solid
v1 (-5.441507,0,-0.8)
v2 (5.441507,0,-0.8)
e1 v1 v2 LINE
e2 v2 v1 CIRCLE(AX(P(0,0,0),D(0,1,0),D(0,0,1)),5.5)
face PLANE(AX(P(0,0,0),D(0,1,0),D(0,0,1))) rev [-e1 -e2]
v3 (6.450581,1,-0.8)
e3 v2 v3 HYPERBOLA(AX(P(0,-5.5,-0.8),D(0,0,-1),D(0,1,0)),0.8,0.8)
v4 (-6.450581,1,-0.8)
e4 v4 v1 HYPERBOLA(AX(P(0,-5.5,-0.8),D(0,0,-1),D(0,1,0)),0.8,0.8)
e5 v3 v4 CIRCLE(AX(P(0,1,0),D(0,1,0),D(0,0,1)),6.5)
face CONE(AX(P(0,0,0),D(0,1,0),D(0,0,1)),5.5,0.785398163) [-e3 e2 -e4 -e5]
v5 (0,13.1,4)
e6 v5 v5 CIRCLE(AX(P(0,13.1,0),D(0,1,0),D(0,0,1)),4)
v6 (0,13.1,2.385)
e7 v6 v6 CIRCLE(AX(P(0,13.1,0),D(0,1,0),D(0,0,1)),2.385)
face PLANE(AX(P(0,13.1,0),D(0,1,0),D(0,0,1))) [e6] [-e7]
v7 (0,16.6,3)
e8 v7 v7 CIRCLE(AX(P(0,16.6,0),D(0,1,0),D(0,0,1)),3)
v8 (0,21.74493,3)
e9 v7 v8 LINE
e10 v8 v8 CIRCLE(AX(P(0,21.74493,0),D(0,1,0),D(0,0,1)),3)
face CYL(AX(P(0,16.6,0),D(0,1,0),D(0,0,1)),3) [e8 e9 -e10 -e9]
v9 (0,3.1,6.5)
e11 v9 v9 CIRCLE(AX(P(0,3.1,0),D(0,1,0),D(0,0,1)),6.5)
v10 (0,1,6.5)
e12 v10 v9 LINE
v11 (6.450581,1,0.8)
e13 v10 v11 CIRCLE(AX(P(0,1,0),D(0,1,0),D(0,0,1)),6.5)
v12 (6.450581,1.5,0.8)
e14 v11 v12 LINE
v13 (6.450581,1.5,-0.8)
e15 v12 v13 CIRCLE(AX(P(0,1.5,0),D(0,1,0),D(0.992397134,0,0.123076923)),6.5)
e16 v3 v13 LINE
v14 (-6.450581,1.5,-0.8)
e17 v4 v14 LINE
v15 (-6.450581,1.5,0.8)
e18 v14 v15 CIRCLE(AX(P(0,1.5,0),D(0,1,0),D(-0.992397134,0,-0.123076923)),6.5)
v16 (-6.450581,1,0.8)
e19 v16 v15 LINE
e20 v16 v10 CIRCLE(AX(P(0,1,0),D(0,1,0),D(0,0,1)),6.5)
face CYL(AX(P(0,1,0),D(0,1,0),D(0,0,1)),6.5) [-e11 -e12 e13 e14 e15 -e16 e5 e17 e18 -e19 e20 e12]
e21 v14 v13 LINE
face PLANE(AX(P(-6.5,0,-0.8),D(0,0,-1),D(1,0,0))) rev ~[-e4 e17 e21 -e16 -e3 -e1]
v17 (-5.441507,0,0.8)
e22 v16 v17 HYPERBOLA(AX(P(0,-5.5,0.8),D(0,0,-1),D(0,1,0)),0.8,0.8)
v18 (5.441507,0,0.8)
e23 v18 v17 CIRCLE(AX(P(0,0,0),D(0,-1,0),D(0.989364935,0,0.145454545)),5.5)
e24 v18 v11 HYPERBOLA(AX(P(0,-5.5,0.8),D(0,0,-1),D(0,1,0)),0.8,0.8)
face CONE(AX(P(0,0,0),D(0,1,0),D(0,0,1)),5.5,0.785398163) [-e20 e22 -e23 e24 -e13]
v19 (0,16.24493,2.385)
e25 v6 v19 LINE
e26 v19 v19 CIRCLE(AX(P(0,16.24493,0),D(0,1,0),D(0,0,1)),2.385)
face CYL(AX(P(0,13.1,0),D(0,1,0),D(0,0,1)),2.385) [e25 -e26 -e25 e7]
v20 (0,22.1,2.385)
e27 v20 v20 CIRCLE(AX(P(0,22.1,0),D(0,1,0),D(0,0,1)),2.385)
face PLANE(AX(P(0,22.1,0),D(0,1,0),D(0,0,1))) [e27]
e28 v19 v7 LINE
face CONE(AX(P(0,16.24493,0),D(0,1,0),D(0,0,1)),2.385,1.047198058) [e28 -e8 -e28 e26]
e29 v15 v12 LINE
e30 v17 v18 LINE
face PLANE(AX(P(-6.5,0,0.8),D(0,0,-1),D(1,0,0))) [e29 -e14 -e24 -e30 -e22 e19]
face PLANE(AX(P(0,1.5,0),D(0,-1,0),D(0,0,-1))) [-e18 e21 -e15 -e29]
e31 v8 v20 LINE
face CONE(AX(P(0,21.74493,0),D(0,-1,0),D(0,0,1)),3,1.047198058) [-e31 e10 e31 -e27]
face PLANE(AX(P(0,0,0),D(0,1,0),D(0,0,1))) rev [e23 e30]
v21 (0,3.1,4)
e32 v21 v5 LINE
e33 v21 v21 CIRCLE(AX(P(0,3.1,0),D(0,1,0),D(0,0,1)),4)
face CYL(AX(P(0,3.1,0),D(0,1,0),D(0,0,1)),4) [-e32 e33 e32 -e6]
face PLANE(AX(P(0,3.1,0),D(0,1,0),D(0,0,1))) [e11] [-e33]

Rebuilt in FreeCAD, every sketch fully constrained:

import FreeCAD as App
import Part
import Sketcher
from FreeCAD import Vector
Q = App.Units.Quantity


def add_polygon(sketch, points):
    """Adds a closed chain of lines whose ends are joined by coincident constraints."""
    first, n = sketch.GeometryCount, len(points)
    for a, b in zip(points, points[1:] + points[:1]):
        sketch.addGeometry(Part.LineSegment(App.Vector(*a, 0), App.Vector(*b, 0)), False)
    for i in range(n):
        sketch.addConstraint(Sketcher.Constraint("Coincident", first + i, 2, first + (i + 1) % n, 1))

doc = App.newDocument("Part")
body = doc.addObject("PartDesign::Body", "Body")

# Sketch on YZ plane
sketch1 = body.newObject("Sketcher::SketchObject", "Sketch")
sketch1.AttachmentSupport = (doc.getObject("YZ_Plane"), [""])
sketch1.MapMode = "FlatFace"
add_polygon(sketch1, [(0, 5.5), (0, 0), (22.1, 0), (22.1, 2.385), (21.74493, 3), (16.6, 3), (16.24493, 2.385), (13.1, 2.385), (13.1, 4), (3.1, 4), (3.1, 6.5), (1, 6.5)])  # lines 0-11
sketch1.addConstraint(Sketcher.Constraint("Vertical", 0))
sketch1.addConstraint(Sketcher.Constraint("Horizontal", 1))
sketch1.addConstraint(Sketcher.Constraint("Vertical", 2))
sketch1.addConstraint(Sketcher.Constraint("Horizontal", 4))
sketch1.addConstraint(Sketcher.Constraint("Horizontal", 6))
sketch1.addConstraint(Sketcher.Constraint("Vertical", 7))
sketch1.addConstraint(Sketcher.Constraint("Horizontal", 8))
sketch1.addConstraint(Sketcher.Constraint("Vertical", 9))
sketch1.addConstraint(Sketcher.Constraint("Horizontal", 10))
sketch1.addConstraint(Sketcher.Constraint("Coincident", 0, 2, -1, 1))
sketch1.addConstraint(Sketcher.Constraint("Horizontal", 2, 2, 5, 2))
sketch1.addConstraint(Sketcher.Constraint("Equal", 3, 5))
sketch1.addConstraint(Sketcher.Constraint("DistanceX", 8, 2, 8, 1, 10.0))
sketch1.addConstraint(Sketcher.Constraint("Angle", 11, Q("-135 deg")))
sketch1.addConstraint(Sketcher.Constraint("DistanceX", 1, 1, 1, 2, 22.1))
sketch1.addConstraint(Sketcher.Constraint("DistanceX", 10, 2, 10, 1, 2.1))
sketch1.addConstraint(Sketcher.Constraint("DistanceY", 0, 2, 0, 1, 5.5))
sketch1.addConstraint(Sketcher.Constraint("DistanceY", 9, 1, 9, 2, 2.5))
sketch1.addConstraint(Sketcher.Constraint("DistanceY", -1, 1, 3, 2, 3.0))
sketch1.addConstraint(Sketcher.Constraint("DistanceY", -1, 1, 7, 2, 4.0))
sketch1.addConstraint(Sketcher.Constraint("DistanceX", -1, 1, 4, 2, 16.6))
sketch1.addConstraint(Sketcher.Constraint("DistanceY", 2, 1, 2, 2, 2.385))
sketch1.addConstraint(Sketcher.Constraint("DistanceX", 4, 2, 4, 1, 5.14493))
revolution = body.newObject("PartDesign::Revolution", "Revolution")
revolution.Profile = sketch1
revolution.ReferenceAxis = (sketch1, ["H_Axis"])
revolution.Angle = 360

# Sketch on XZ plane
sketch2 = body.newObject("Sketcher::SketchObject", "Sketch001")
sketch2.AttachmentSupport = (doc.getObject("XZ_Plane"), [""])
sketch2.MapMode = "FlatFace"
add_polygon(sketch2, [(6.5, 0.8), (-6.5, 0.8), (-6.5, -0.8), (6.5, -0.8)])  # lines 0-3
sketch2.addConstraint(Sketcher.Constraint("Horizontal", 0))
sketch2.addConstraint(Sketcher.Constraint("Vertical", 1))
sketch2.addConstraint(Sketcher.Constraint("Horizontal", 2))
sketch2.addConstraint(Sketcher.Constraint("Vertical", 3))
sketch2.addConstraint(Sketcher.Constraint("Symmetric", 0, 2, 2, 2, -1, 1))
sketch2.addConstraint(Sketcher.Constraint("DistanceX", 0, 2, 0, 1, 13.0))
sketch2.addConstraint(Sketcher.Constraint("DistanceY", 1, 2, 1, 1, 1.6))
pocket1 = body.newObject("PartDesign::Pocket", "Pocket")
pocket1.Profile = sketch2
pocket1.Length = 1.5

doc.recompute()
